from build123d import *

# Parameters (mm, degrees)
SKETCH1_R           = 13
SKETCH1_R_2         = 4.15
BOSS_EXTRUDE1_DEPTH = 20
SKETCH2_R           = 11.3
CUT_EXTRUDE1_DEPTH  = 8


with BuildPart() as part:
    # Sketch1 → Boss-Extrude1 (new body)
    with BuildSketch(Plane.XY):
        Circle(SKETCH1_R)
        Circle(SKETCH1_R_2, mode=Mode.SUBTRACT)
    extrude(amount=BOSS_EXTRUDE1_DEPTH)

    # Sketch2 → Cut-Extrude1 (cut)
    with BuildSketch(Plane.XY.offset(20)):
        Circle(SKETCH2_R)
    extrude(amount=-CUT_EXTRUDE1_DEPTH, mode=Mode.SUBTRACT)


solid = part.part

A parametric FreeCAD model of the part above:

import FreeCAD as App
import Part
import Sketcher
from FreeCAD import Vector

doc = App.newDocument("Part")
body = doc.addObject("PartDesign::Body", "Body")

sketch1 = body.newObject("Sketcher::SketchObject", "Sketch")
sketch1.AttachmentSupport = (doc.getObject("XY_Plane"), [""])
sketch1.MapMode = "FlatFace"
sketch1.addGeometry(Part.Circle(Vector(0, 0, 0), Vector(0, 0, 1), 13), False)
sketch1.addGeometry(Part.Circle(Vector(0, 0, 0), Vector(0, 0, 1), 4.2), False)
sketch1.addConstraint(Sketcher.Constraint("Coincident", 0, 3, -1, 1))
sketch1.addConstraint(Sketcher.Constraint("Coincident", 1, 3, -1, 1))
sketch1.addConstraint(Sketcher.Constraint("Diameter", 0, 26.0))
sketch1.addConstraint(Sketcher.Constraint("Diameter", 1, 8.3))
pad1 = body.newObject("PartDesign::Pad", "Pad")
pad1.Profile = sketch1
pad1.Length = 20

sketch2 = body.newObject("Sketcher::SketchObject", "Sketch001")
sketch2.AttachmentSupport = (doc.getObject("XY_Plane"), [""])
sketch2.MapMode = "FlatFace"
sketch2.AttachmentOffset = App.Placement(Vector(0, 0, 20), App.Rotation())
sketch2.addGeometry(Part.Circle(Vector(0, 0, 0), Vector(0, 0, 1), 11), False)
sketch2.addConstraint(Sketcher.Constraint("Coincident", 0, 3, -1, 1))
sketch2.addConstraint(Sketcher.Constraint("Diameter", 0, 22.6))
pocket1 = body.newObject("PartDesign::Pocket", "Pocket")
pocket1.Profile = sketch2
pocket1.Length = 8

doc.recompute()
